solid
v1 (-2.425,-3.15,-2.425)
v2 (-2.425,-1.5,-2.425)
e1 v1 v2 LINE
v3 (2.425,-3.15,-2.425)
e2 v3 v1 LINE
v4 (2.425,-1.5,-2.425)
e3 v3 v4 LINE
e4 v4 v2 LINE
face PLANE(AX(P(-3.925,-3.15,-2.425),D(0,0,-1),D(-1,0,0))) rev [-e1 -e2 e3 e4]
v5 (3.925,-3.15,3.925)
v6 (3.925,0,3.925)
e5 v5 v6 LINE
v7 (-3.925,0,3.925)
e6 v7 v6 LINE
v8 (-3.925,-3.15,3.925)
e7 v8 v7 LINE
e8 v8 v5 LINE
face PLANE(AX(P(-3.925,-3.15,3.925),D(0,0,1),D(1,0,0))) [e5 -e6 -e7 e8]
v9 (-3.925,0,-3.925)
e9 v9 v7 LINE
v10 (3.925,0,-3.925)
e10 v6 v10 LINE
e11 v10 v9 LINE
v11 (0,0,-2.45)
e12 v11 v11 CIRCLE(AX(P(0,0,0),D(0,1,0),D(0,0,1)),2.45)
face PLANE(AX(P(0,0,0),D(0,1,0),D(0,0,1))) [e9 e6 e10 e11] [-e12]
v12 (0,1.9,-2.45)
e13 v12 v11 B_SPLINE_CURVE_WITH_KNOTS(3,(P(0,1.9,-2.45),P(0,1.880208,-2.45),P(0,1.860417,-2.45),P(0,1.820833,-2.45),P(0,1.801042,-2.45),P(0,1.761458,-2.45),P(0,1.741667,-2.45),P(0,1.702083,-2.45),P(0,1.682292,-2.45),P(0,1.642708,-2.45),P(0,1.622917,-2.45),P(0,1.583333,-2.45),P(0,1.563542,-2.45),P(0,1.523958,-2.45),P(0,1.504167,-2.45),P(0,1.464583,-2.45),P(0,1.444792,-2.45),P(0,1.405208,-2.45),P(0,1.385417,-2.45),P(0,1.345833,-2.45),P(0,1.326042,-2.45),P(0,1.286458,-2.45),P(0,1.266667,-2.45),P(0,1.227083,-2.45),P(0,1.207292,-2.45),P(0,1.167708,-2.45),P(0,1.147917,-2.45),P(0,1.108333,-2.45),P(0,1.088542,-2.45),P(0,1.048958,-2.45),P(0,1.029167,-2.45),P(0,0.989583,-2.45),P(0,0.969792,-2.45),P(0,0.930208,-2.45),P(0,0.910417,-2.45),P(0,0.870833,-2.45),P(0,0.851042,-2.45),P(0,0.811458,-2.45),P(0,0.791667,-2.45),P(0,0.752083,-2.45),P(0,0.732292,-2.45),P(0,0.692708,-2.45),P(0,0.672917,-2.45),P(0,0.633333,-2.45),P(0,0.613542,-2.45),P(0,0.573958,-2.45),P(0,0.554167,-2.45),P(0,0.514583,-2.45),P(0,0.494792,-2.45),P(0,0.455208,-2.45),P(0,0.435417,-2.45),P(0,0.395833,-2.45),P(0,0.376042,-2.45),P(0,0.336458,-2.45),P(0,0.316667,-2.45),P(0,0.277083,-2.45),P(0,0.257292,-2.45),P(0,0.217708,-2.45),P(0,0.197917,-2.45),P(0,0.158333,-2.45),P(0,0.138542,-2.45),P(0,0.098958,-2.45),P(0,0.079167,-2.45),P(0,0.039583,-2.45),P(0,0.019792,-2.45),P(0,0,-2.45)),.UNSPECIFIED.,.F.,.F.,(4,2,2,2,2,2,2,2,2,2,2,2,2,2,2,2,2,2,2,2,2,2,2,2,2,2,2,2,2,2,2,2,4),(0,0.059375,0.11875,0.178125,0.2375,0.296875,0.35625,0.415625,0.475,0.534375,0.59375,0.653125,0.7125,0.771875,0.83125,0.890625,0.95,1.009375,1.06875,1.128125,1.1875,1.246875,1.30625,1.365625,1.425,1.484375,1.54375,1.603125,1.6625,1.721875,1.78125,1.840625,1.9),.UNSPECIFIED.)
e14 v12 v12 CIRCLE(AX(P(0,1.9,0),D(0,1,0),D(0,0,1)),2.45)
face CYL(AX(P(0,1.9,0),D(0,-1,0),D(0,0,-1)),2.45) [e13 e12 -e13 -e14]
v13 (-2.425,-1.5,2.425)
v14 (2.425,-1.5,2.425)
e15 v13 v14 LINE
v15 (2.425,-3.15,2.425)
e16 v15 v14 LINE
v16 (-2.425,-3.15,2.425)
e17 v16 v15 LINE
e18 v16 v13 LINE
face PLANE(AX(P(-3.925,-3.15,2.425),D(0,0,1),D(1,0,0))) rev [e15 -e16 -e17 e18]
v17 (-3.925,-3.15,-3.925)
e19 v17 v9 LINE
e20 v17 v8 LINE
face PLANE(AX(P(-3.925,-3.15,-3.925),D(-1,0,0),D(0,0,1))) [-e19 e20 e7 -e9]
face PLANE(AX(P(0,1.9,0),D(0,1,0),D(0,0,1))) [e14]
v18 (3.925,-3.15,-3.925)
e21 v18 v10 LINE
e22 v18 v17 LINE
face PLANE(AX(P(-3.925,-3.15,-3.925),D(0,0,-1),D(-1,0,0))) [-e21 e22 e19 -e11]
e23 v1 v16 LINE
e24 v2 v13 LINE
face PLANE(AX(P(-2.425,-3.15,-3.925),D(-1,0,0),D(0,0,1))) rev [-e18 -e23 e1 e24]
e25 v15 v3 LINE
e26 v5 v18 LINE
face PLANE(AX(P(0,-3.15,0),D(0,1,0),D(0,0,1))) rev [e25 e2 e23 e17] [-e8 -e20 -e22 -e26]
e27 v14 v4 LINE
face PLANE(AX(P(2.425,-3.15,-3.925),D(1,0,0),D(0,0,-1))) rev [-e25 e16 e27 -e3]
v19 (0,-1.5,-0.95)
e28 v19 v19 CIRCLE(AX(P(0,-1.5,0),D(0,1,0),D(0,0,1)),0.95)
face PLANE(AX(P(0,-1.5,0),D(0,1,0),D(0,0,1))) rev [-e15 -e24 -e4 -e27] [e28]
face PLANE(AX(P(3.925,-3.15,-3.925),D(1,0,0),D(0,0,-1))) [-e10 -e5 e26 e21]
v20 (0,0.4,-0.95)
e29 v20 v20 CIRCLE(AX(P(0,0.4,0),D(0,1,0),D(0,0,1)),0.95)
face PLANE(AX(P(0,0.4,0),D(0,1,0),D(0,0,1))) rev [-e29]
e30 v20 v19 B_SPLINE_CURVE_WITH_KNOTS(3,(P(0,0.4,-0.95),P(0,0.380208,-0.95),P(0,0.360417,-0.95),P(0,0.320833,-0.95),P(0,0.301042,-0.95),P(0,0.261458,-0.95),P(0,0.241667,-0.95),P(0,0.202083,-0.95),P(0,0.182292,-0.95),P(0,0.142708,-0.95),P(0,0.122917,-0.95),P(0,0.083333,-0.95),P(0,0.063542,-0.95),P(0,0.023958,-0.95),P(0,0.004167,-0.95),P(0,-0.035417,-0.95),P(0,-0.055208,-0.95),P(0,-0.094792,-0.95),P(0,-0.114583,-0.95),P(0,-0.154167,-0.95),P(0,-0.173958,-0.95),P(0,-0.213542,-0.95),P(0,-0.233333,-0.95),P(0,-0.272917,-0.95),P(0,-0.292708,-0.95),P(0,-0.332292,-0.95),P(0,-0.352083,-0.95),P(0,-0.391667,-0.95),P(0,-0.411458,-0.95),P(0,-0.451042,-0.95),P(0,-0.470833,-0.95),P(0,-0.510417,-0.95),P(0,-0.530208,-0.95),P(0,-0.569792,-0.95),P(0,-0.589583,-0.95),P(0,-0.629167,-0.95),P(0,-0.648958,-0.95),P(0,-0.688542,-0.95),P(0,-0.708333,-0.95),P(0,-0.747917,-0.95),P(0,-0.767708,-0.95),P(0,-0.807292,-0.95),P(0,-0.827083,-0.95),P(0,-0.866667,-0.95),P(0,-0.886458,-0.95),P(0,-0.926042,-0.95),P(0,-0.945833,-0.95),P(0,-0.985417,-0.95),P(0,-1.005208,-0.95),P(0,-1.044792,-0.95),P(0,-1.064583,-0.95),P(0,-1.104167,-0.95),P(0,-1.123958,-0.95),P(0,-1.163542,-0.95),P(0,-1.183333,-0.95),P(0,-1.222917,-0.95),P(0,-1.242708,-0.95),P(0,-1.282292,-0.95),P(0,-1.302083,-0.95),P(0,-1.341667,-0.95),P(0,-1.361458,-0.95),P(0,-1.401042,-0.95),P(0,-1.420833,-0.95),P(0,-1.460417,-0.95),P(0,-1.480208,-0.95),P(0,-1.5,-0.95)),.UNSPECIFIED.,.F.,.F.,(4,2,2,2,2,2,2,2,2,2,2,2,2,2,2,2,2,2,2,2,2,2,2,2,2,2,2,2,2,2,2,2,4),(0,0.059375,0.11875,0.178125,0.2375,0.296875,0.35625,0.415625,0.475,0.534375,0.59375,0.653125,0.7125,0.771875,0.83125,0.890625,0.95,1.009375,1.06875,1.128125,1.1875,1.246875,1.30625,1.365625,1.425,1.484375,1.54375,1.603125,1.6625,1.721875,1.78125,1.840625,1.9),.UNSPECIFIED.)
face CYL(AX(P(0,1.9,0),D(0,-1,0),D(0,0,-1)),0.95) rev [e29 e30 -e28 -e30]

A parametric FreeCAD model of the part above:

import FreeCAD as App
import Part
import Sketcher


def faces_at(feature, points):
    """Names of the faces that lie closest to the given points."""
    faces = feature.Shape.Faces
    near = lambda p: min(range(len(faces)), key=lambda i: faces[i].distToShape(Part.Vertex(*p))[0])
    return sorted({f"Face{near(p) + 1}" for p in points})

doc = App.newDocument("Part")
body = doc.addObject("PartDesign::Body", "Body")

sketch1 = body.newObject("Sketcher::SketchObject", "Sketch")
sketch1.AttachmentSupport = (doc.getObject("XZ_Plane"), [""])
sketch1.MapMode = "FlatFace"
sketch1.addGeometry(Part.LineSegment(App.Vector(-4, -4, 0), App.Vector(-4, 4, 0)), False)
sketch1.addGeometry(Part.LineSegment(App.Vector(-4, 4, 0), App.Vector(4, 4, 0)), False)
sketch1.addGeometry(Part.LineSegment(App.Vector(4, 4, 0), App.Vector(4, -4, 0)), False)
sketch1.addGeometry(Part.LineSegment(App.Vector(4, -4, 0), App.Vector(-4, -4, 0)), False)
sketch1.addConstraint(Sketcher.Constraint("Coincident", 0, 2, 1, 1))
sketch1.addConstraint(Sketcher.Constraint("Coincident", 1, 2, 2, 1))
sketch1.addConstraint(Sketcher.Constraint("Coincident", 2, 2, 3, 1))
sketch1.addConstraint(Sketcher.Constraint("Coincident", 3, 2, 0, 1))
sketch1.addConstraint(Sketcher.Constraint("Vertical", 0))
sketch1.addConstraint(Sketcher.Constraint("Horizontal", 1))
sketch1.addConstraint(Sketcher.Constraint("Vertical", 2))
sketch1.addConstraint(Sketcher.Constraint("Horizontal", 3))
sketch1.addConstraint(Sketcher.Constraint("Symmetric", 0, 2, 2, 2, -1, 1))
sketch1.addConstraint(Sketcher.Constraint("Equal", 3, 0))
sketch1.addConstraint(Sketcher.Constraint("DistanceX", 1, 1, 1, 2, 7.85))
pad1 = body.newObject("PartDesign::Pad", "Pad")
pad1.Profile = sketch1
pad1.Length = 3.15

sketch2 = body.newObject("Sketcher::SketchObject", "Sketch001")
sketch2.AttachmentSupport = (doc.getObject("XZ_Plane"), [""])
sketch2.MapMode = "FlatFace"
sketch2.addGeometry(Part.Circle(App.Vector(0, 0, 0), App.Vector(0, 0, 1), 2.5), False)
sketch2.addConstraint(Sketcher.Constraint("Coincident", 0, 3, -1, 1))
sketch2.addConstraint(Sketcher.Constraint("Diameter", 0, 4.9))
pad2 = body.newObject("PartDesign::Pad", "Pad001")
pad2.Profile = sketch2
pad2.Length = 1.9
pad2.Reversed = True
doc.recompute()

thickness = body.newObject("PartDesign::Thickness", "Thickness")
thickness.Base = (pad2, faces_at(pad2, [(0, -3.15, 0)]))
thickness.Value = 1.5
thickness.Reversed = True
thickness.Join = "Intersection"

doc.recompute()
